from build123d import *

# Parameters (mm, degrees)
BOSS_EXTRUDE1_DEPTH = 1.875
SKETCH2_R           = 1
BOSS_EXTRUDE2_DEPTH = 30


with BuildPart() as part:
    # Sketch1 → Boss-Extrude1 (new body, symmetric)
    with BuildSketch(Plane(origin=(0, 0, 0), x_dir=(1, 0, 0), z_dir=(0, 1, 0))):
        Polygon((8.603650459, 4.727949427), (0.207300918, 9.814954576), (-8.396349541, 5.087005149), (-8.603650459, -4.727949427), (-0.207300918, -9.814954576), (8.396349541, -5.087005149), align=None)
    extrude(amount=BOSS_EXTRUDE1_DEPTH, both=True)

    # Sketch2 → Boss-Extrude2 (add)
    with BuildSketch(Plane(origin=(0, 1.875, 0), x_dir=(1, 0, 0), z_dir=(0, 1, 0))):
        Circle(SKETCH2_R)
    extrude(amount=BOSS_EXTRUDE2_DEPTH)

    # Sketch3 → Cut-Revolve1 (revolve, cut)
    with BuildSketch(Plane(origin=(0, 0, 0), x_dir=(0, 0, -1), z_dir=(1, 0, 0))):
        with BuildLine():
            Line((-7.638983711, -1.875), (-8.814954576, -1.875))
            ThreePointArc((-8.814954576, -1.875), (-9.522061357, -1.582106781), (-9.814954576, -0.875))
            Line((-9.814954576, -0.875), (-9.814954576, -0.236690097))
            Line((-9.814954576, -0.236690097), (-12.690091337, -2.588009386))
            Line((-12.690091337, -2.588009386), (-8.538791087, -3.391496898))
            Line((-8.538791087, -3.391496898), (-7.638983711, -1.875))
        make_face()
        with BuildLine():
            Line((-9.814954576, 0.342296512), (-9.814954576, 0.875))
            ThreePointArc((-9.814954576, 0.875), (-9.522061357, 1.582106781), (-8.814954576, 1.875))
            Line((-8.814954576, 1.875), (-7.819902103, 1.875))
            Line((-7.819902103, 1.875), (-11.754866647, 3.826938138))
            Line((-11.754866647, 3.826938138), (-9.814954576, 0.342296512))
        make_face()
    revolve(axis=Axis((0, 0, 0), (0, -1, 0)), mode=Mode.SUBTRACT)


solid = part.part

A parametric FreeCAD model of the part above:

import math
import FreeCAD as App
import Part
import Sketcher
from FreeCAD import Vector
Q = App.Units.Quantity

doc = App.newDocument("Part")
body = doc.addObject("PartDesign::Body", "Body")

sketch1 = body.newObject("Sketcher::SketchObject", "Sketch")
sketch1.AttachmentSupport = (doc.getObject("XZ_Plane"), [""])
sketch1.MapMode = "FlatFace"
sketch1.addGeometry([
    Part.LineSegment(Vector(8.60365, -4.727949, 0), Vector(0.207301, -9.814955, 0)),
    Part.LineSegment(Vector(0.207301, -9.814955, 0), Vector(-8.39635, -5.087005, 0)),
    Part.LineSegment(Vector(-8.39635, -5.087005, 0), Vector(-8.60365, 4.727949, 0)),
    Part.LineSegment(Vector(-8.60365, 4.727949, 0), Vector(-0.207301, 9.814955, 0)),
    Part.LineSegment(Vector(-0.207301, 9.814955, 0), Vector(8.39635, 5.087005, 0)),
    Part.LineSegment(Vector(8.39635, 5.087005, 0), Vector(8.60365, -4.727949, 0)),
], False)
sketch1.addConstraint([
    Sketcher.Constraint("Coincident", 0, 2, 1, 1),
    Sketcher.Constraint("Coincident", 1, 2, 2, 1),
    Sketcher.Constraint("Coincident", 2, 2, 3, 1),
    Sketcher.Constraint("Coincident", 3, 2, 4, 1),
    Sketcher.Constraint("Coincident", 4, 2, 5, 1),
    Sketcher.Constraint("Coincident", 5, 2, 0, 1),
    Sketcher.Constraint("Symmetric", 0, 2, 3, 2, -1, 1),
    Sketcher.Constraint("Symmetric", 1, 2, 4, 2, -1, 1),
    Sketcher.Constraint("Symmetric", 2, 2, 5, 2, -1, 1),
    Sketcher.Constraint("Equal", 0, 1),
    Sketcher.Constraint("Equal", 1, 2),
    Sketcher.Constraint("DistanceX", 2, 2, 4, 2, Q("17 mm")),
    Sketcher.Constraint("DistanceX", -1, 1, 0, 2, Q("0.207301 mm")),
    Sketcher.Constraint("DistanceX", 2, 2, 1, 2, Q("0.207301 mm")),
    Sketcher.Constraint("DistanceY", 5, 2, 2, 2, Q("9.455899 mm")),
])
pad1 = body.newObject("PartDesign::Pad", "Pad")
pad1.Profile = sketch1
pad1.Length = 3.75
pad1.Midplane = True

sketch2 = body.newObject("Sketcher::SketchObject", "Sketch001")
sketch2.AttachmentSupport = (doc.getObject("XZ_Plane"), [""])
sketch2.MapMode = "FlatFace"
sketch2.AttachmentOffset = App.Placement(Vector(0, 0, -1.875), App.Rotation())
sketch2.addGeometry(Part.Circle(Vector(0, 0, 0), Vector(0, 0, 1), 1), False)
sketch2.addConstraint([
    Sketcher.Constraint("Coincident", 0, 3, -1, 1),
    Sketcher.Constraint("Diameter", 0, Q("2 mm")),
])
pad2 = body.newObject("PartDesign::Pad", "Pad001")
pad2.Profile = sketch2
pad2.Length = 30
pad2.Reversed = True

sketch3 = body.newObject("Sketcher::SketchObject", "Sketch002")
sketch3.AttachmentSupport = (doc.getObject("YZ_Plane"), [""])
sketch3.MapMode = "FlatFace"
sketch3.addGeometry([
    Part.LineSegment(Vector(-1.875, 7.638984, 0), Vector(-1.875, 8.814955, 0)),
    Part.ArcOfCircle(Part.Circle(Vector(-0.875, 8.814955, 0), Vector(0, 0, 1), 1), math.radians(90), math.radians(180)),
    Part.LineSegment(Vector(-0.875, 9.814955, 0), Vector(-0.23669, 9.814955, 0)),
    Part.LineSegment(Vector(-0.23669, 9.814955, 0), Vector(-2.588009, 12.690091, 0)),
    Part.LineSegment(Vector(-2.588009, 12.690091, 0), Vector(-3.391497, 8.538791, 0)),
    Part.LineSegment(Vector(-3.391497, 8.538791, 0), Vector(-1.875, 7.638984, 0)),
    Part.LineSegment(Vector(0.342297, 9.814955, 0), Vector(0.875, 9.814955, 0)),
    Part.ArcOfCircle(Part.Circle(Vector(0.875, 8.814955, 0), Vector(0, 0, 1), 1), math.radians(0), math.radians(90)),
    Part.LineSegment(Vector(1.875, 8.814955, 0), Vector(1.875, 7.819902, 0)),
    Part.LineSegment(Vector(1.875, 7.819902, 0), Vector(3.826938, 11.754867, 0)),
    Part.LineSegment(Vector(3.826938, 11.754867, 0), Vector(0.342297, 9.814955, 0)),
], False)
sketch3.addConstraint([
    Sketcher.Constraint("Tangent", 0, 2, 1, 2),
    Sketcher.Constraint("Tangent", 1, 1, 2, 1),
    Sketcher.Constraint("Coincident", 2, 2, 3, 1),
    Sketcher.Constraint("Coincident", 3, 2, 4, 1),
    Sketcher.Constraint("Coincident", 4, 2, 5, 1),
    Sketcher.Constraint("Coincident", 5, 2, 0, 1),
    Sketcher.Constraint("Tangent", 6, 2, 7, 2),
    Sketcher.Constraint("Tangent", 7, 1, 8, 1),
    Sketcher.Constraint("Coincident", 8, 2, 9, 1),
    Sketcher.Constraint("Coincident", 9, 2, 10, 1),
    Sketcher.Constraint("Coincident", 10, 2, 6, 1),
    Sketcher.Constraint("Vertical", 0),
    Sketcher.Constraint("Horizontal", 2),
    Sketcher.Constraint("Horizontal", 6),
    Sketcher.Constraint("Vertical", 8),
    Sketcher.Constraint("Equal", 1, 7),
    Sketcher.Constraint("Symmetric", 1, 3, 7, 3, -2),
    Sketcher.Constraint("Radius", 1, Q("1 mm")),
    Sketcher.Constraint("DistanceX", 1, 3, 7, 3, Q("1.75 mm")),
    Sketcher.Constraint("DistanceX", 2, 1, 2, 2, Q("0.63831 mm")),
    Sketcher.Constraint("DistanceY", 0, 1, 0, 2, Q("1.175971 mm")),
    Sketcher.Constraint("DistanceY", 4, 2, 3, 2, Q("4.1513 mm")),
    Sketcher.Constraint("Distance", 10, Q("3.988231 mm")),
    Sketcher.Constraint("DistanceX", 6, 1, 6, 2, Q("0.532703 mm")),
    Sketcher.Constraint("DistanceY", 8, 2, 8, 1, Q("0.995052 mm")),
    Sketcher.Constraint("DistanceX", 3, 2, -1, 1, Q("2.588009 mm")),
    Sketcher.Constraint("DistanceY", -1, 1, 3, 2, Q("12.690091 mm")),
    Sketcher.Constraint("DistanceX", -1, 1, 9, 2, Q("3.826938 mm")),
    Sketcher.Constraint("Distance", 3, Q("3.714177 mm")),
    Sketcher.Constraint("Distance", 4, Q("4.228343 mm")),
])
groove = body.newObject("PartDesign::Groove", "Groove")
groove.Profile = sketch3
groove.ReferenceAxis = (sketch3, ["H_Axis"])
groove.Angle = 360

doc.recompute()
